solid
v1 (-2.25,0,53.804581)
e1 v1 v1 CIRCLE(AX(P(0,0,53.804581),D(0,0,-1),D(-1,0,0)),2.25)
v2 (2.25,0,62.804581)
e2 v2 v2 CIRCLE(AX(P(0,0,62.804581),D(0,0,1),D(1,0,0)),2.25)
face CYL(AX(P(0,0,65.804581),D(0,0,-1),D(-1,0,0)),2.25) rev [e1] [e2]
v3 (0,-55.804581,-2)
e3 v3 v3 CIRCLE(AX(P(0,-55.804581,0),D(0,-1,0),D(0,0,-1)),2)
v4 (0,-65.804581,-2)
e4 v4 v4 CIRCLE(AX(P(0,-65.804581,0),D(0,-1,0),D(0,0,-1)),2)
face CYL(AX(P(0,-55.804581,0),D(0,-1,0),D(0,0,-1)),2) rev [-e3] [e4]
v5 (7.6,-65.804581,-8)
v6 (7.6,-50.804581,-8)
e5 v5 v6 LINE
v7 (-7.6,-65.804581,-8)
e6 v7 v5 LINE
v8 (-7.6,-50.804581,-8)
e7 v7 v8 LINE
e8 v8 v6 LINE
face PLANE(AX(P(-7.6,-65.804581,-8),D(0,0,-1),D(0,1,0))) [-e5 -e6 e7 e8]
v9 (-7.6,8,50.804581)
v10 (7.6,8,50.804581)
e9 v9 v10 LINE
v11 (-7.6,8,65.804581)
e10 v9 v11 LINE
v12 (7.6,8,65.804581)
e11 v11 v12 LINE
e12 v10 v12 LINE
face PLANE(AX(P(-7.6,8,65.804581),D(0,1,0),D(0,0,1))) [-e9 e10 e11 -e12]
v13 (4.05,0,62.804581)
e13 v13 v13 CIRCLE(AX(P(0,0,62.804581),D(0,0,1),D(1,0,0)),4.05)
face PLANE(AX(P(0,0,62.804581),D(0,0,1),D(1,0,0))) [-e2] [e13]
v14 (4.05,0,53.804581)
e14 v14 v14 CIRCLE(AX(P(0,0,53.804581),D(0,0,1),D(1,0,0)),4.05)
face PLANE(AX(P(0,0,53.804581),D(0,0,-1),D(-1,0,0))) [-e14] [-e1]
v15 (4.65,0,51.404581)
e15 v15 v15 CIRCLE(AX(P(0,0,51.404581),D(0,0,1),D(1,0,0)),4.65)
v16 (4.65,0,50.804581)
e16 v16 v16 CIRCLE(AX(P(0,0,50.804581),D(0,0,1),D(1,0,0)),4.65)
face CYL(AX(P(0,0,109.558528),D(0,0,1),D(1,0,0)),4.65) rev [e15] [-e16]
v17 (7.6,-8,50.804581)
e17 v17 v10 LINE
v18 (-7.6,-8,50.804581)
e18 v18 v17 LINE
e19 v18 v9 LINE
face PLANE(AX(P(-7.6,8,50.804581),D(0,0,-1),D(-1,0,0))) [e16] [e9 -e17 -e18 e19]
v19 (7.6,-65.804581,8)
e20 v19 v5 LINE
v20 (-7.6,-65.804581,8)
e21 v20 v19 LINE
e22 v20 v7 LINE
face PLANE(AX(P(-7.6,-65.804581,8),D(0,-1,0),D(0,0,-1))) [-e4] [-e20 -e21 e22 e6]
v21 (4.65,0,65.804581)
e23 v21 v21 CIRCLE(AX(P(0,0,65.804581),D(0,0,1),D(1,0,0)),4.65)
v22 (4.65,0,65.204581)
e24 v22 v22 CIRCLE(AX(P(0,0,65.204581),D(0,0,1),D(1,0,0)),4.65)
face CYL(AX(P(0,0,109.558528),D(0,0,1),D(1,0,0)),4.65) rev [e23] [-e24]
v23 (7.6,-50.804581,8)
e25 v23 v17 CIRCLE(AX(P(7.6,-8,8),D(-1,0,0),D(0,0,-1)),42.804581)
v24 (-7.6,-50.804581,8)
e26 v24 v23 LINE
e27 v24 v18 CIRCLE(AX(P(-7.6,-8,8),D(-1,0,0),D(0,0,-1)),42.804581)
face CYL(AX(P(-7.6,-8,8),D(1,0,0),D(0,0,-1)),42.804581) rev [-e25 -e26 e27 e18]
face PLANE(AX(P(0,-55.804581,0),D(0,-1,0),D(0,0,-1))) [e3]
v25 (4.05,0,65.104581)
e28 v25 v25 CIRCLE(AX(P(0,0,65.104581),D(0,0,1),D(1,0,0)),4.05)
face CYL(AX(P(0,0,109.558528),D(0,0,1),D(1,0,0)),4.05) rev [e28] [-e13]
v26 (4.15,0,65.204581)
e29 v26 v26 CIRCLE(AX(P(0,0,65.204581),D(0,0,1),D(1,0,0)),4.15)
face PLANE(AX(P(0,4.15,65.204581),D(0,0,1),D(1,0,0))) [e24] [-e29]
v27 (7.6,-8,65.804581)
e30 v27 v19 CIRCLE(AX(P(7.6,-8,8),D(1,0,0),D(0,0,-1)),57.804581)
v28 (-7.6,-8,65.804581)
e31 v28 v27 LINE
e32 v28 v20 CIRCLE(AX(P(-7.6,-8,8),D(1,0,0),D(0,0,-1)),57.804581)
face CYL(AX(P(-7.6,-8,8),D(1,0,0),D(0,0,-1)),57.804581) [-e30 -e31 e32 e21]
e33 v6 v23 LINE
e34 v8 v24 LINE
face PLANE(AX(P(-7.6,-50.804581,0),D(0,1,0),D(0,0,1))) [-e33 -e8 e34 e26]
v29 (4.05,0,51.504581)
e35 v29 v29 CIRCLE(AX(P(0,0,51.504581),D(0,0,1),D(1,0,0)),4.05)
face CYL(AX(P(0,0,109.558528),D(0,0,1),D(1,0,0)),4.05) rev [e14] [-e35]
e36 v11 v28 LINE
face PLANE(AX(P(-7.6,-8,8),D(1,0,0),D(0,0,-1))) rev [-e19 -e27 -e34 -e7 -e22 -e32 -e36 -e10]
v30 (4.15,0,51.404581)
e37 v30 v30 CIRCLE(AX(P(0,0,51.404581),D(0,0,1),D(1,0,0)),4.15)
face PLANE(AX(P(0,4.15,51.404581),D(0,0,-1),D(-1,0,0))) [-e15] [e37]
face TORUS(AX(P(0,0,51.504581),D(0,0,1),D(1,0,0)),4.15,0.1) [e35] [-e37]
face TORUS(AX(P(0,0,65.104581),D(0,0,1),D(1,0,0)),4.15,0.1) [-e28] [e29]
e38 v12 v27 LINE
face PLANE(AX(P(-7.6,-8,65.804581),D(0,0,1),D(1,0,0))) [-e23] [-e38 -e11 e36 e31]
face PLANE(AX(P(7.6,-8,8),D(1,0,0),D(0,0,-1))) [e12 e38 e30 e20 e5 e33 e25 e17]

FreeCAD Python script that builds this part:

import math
import FreeCAD as App
import Part
import Sketcher
Q = App.Units.Quantity

doc = App.newDocument("Part")
body = doc.addObject("PartDesign::Body", "Body")

sketch1 = body.newObject("Sketcher::SketchObject", "Sketch")
sketch1.AttachmentSupport = (doc.getObject("YZ_Plane"), [""])
sketch1.MapMode = "FlatFace"
sketch1.addGeometry(Part.LineSegment(App.Vector(-8, 50.804581, 0), App.Vector(8, 50.804581, 0)), False)
sketch1.addGeometry(Part.LineSegment(App.Vector(8, 50.804581, 0), App.Vector(8, 65.804581, 0)), False)
sketch1.addGeometry(Part.LineSegment(App.Vector(8, 65.804581, 0), App.Vector(-8, 65.804581, 0)), False)
sketch1.addGeometry(Part.ArcOfCircle(Part.Circle(App.Vector(-8, 8, 0), App.Vector(0, 0, 1), 57.804581), math.radians(90), math.radians(180)), False)
sketch1.addGeometry(Part.LineSegment(App.Vector(-65.804581, 8, 0), App.Vector(-65.804581, -8, 0)), False)
sketch1.addGeometry(Part.LineSegment(App.Vector(-65.804581, -8, 0), App.Vector(-50.804581, -8, 0)), False)
sketch1.addGeometry(Part.LineSegment(App.Vector(-50.804581, -8, 0), App.Vector(-50.804581, 8, 0)), False)
sketch1.addGeometry(Part.ArcOfCircle(Part.Circle(App.Vector(-8, 8, 0), App.Vector(0, 0, 1), 42.804581), math.radians(90), math.radians(180)), False)
sketch1.addConstraint(Sketcher.Constraint("Coincident", 0, 2, 1, 1))
sketch1.addConstraint(Sketcher.Constraint("Coincident", 1, 2, 2, 1))
sketch1.addConstraint(Sketcher.Constraint("Tangent", 2, 2, 3, 1))
sketch1.addConstraint(Sketcher.Constraint("Tangent", 3, 2, 4, 1))
sketch1.addConstraint(Sketcher.Constraint("Coincident", 4, 2, 5, 1))
sketch1.addConstraint(Sketcher.Constraint("Coincident", 5, 2, 6, 1))
sketch1.addConstraint(Sketcher.Constraint("Tangent", 6, 2, 7, 2))
sketch1.addConstraint(Sketcher.Constraint("Tangent", 7, 1, 0, 1))
sketch1.addConstraint(Sketcher.Constraint("Horizontal", 0))
sketch1.addConstraint(Sketcher.Constraint("Vertical", 1))
sketch1.addConstraint(Sketcher.Constraint("Horizontal", 2))
sketch1.addConstraint(Sketcher.Constraint("Vertical", 4))
sketch1.addConstraint(Sketcher.Constraint("Horizontal", 5))
sketch1.addConstraint(Sketcher.Constraint("Vertical", 6))
sketch1.addConstraint(Sketcher.Constraint("Coincident", 7, 3, 3, 3))
sketch1.addConstraint(Sketcher.Constraint("Equal", 2, 4))
sketch1.addConstraint(Sketcher.Constraint("DistanceX", 0, 1, 0, 2, Q("16 mm")))
sketch1.addConstraint(Sketcher.Constraint("DistanceX", 5, 1, 5, 2, Q("15 mm")))
sketch1.addConstraint(Sketcher.Constraint("DistanceX", 3, 3, -1, 1, Q("8 mm")))
sketch1.addConstraint(Sketcher.Constraint("DistanceY", -1, 1, 3, 3, Q("8 mm")))
sketch1.addConstraint(Sketcher.Constraint("Radius", 3, Q("57.804581 mm")))
pad1 = body.newObject("PartDesign::Pad", "Pad")
pad1.Profile = sketch1
pad1.Type = "TwoLengths"
pad1.Length = 7.6
pad1.Length2 = 7.6

sketch2 = body.newObject("Sketcher::SketchObject", "Sketch001")
sketch2.AttachmentSupport = (doc.getObject("XY_Plane"), [""])
sketch2.MapMode = "FlatFace"
sketch2.addGeometry(Part.Circle(App.Vector(0, 0, 0), App.Vector(0, 0, 1), 2.25), False)
sketch2.addConstraint(Sketcher.Constraint("Coincident", 0, 3, -1, 1))
sketch2.addConstraint(Sketcher.Constraint("Diameter", 0, Q("4.5 mm")))
pocket1 = body.newObject("PartDesign::Pocket", "Pocket")
pocket1.Profile = sketch2
pocket1.Type = "ThroughAll"
pocket1.Reversed = True

sketch3 = body.newObject("Sketcher::SketchObject", "Sketch002")
sketch3.AttachmentSupport = (doc.getObject("XZ_Plane"), [""])
sketch3.MapMode = "FlatFace"
sketch3.AttachmentOffset = App.Placement(App.Vector(0, 0, 65.804581), App.Rotation())
sketch3.addGeometry(Part.Circle(App.Vector(0, 0, 0), App.Vector(0, 0, 1), 2), False)
sketch3.addConstraint(Sketcher.Constraint("Coincident", 0, 3, -1, 1))
sketch3.addConstraint(Sketcher.Constraint("Diameter", 0, Q("4 mm")))
pocket2 = body.newObject("PartDesign::Pocket", "Pocket001")
pocket2.Profile = sketch3
pocket2.Length = 10

sketch4 = body.newObject("Sketcher::SketchObject", "Sketch003")
sketch4.AttachmentSupport = (doc.getObject("YZ_Plane"), [""])
sketch4.MapMode = "FlatFace"
sketch4.addGeometry(Part.LineSegment(App.Vector(4.65, 65.804581, 0), App.Vector(0, 65.804581, 0)), False)
sketch4.addGeometry(Part.LineSegment(App.Vector(0, 65.804581, 0), App.Vector(0, 62.804581, 0)), False)
sketch4.addGeometry(Part.LineSegment(App.Vector(0, 62.804581, 0), App.Vector(4.05, 62.804581, 0)), False)
sketch4.addGeometry(Part.LineSegment(App.Vector(4.05, 62.804581, 0), App.Vector(4.05, 65.104581, 0)), False)
sketch4.addGeometry(Part.ArcOfCircle(Part.Circle(App.Vector(4.15, 65.104581, 0), App.Vector(0, 0, 1), 0.1), math.radians(90), math.radians(180)), False)
sketch4.addGeometry(Part.LineSegment(App.Vector(4.15, 65.204581, 0), App.Vector(4.65, 65.204581, 0)), False)
sketch4.addGeometry(Part.LineSegment(App.Vector(4.65, 65.204581, 0), App.Vector(4.65, 65.804581, 0)), False)
sketch4.addGeometry(Part.LineSegment(App.Vector(4.65, 50.804581, 0), App.Vector(4.65, 51.404581, 0)), False)
sketch4.addGeometry(Part.LineSegment(App.Vector(4.65, 51.404581, 0), App.Vector(4.15, 51.404581, 0)), False)
sketch4.addGeometry(Part.ArcOfCircle(Part.Circle(App.Vector(4.15, 51.504581, 0), App.Vector(0, 0, 1), 0.1), math.radians(180), math.radians(270)), False)
sketch4.addGeometry(Part.LineSegment(App.Vector(4.05, 51.504581, 0), App.Vector(4.05, 53.804581, 0)), False)
sketch4.addGeometry(Part.LineSegment(App.Vector(4.05, 53.804581, 0), App.Vector(0, 53.804581, 0)), False)
sketch4.addGeometry(Part.LineSegment(App.Vector(0, 53.804581, 0), App.Vector(0, 50.804581, 0)), False)
sketch4.addGeometry(Part.LineSegment(App.Vector(0, 50.804581, 0), App.Vector(4.65, 50.804581, 0)), False)
sketch4.addConstraint(Sketcher.Constraint("Coincident", 0, 2, 1, 1))
sketch4.addConstraint(Sketcher.Constraint("Coincident", 1, 2, 2, 1))
sketch4.addConstraint(Sketcher.Constraint("Coincident", 2, 2, 3, 1))
sketch4.addConstraint(Sketcher.Constraint("Tangent", 3, 2, 4, 2))
sketch4.addConstraint(Sketcher.Constraint("Tangent", 4, 1, 5, 1))
sketch4.addConstraint(Sketcher.Constraint("Coincident", 5, 2, 6, 1))
sketch4.addConstraint(Sketcher.Constraint("Coincident", 6, 2, 0, 1))
sketch4.addConstraint(Sketcher.Constraint("Coincident", 7, 2, 8, 1))
sketch4.addConstraint(Sketcher.Constraint("Tangent", 8, 2, 9, 2))
sketch4.addConstraint(Sketcher.Constraint("Tangent", 9, 1, 10, 1))
sketch4.addConstraint(Sketcher.Constraint("Coincident", 10, 2, 11, 1))
sketch4.addConstraint(Sketcher.Constraint("Coincident", 11, 2, 12, 1))
sketch4.addConstraint(Sketcher.Constraint("Coincident", 12, 2, 13, 1))
sketch4.addConstraint(Sketcher.Constraint("Coincident", 13, 2, 7, 1))
sketch4.addConstraint(Sketcher.Constraint("Horizontal", 0))
sketch4.addConstraint(Sketcher.Constraint("Vertical", 1))
sketch4.addConstraint(Sketcher.Constraint("Horizontal", 2))
sketch4.addConstraint(Sketcher.Constraint("Vertical", 3))
sketch4.addConstraint(Sketcher.Constraint("Horizontal", 5))
sketch4.addConstraint(Sketcher.Constraint("Vertical", 6))
sketch4.addConstraint(Sketcher.Constraint("Vertical", 7))
sketch4.addConstraint(Sketcher.Constraint("Horizontal", 8))
sketch4.addConstraint(Sketcher.Constraint("Vertical", 10))
sketch4.addConstraint(Sketcher.Constraint("Horizontal", 11))
sketch4.addConstraint(Sketcher.Constraint("Vertical", 12))
sketch4.addConstraint(Sketcher.Constraint("Horizontal", 13))
sketch4.addConstraint(Sketcher.Constraint("Equal", 4, 9))
sketch4.addConstraint(Sketcher.Constraint("PointOnObject", 0, 2, -2))
sketch4.addConstraint(Sketcher.Constraint("PointOnObject", 11, 2, -2))
sketch4.addConstraint(Sketcher.Constraint("Vertical", 4, 3, 9, 3))
sketch4.addConstraint(Sketcher.Constraint("Vertical", 6, 2, 7, 2))
sketch4.addConstraint(Sketcher.Constraint("Equal", 6, 7))
sketch4.addConstraint(Sketcher.Constraint("Equal", 3, 10))
sketch4.addConstraint(Sketcher.Constraint("Radius", 4, Q("0.1 mm")))
sketch4.addConstraint(Sketcher.Constraint("DistanceY", 1, 2, 1, 1, Q("3 mm")))
sketch4.addConstraint(Sketcher.Constraint("DistanceX", 5, 1, 5, 2, Q("0.5 mm")))
sketch4.addConstraint(Sketcher.Constraint("DistanceY", 3, 1, 3, 2, Q("2.3 mm")))
sketch4.addConstraint(Sketcher.Constraint("DistanceY", 10, 2, 2, 2, Q("9 mm")))
sketch4.addConstraint(Sketcher.Constraint("DistanceX", 0, 2, 0, 1, Q("4.65 mm")))
sketch4.addConstraint(Sketcher.Constraint("DistanceY", -1, 1, 4, 3, Q("65.104581 mm")))
groove = body.newObject("PartDesign::Groove", "Groove")
groove.Profile = sketch4
groove.ReferenceAxis = (sketch4, ["V_Axis"])
groove.Angle = 360

doc.recompute()
